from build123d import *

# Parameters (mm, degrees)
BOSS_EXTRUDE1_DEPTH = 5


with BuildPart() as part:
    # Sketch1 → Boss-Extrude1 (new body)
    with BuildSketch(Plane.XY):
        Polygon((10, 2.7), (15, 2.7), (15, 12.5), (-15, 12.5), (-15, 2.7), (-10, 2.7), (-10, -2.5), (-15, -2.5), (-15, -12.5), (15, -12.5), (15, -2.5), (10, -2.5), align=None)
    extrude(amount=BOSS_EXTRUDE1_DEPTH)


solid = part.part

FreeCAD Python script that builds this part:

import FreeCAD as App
import Part
import Sketcher

doc = App.newDocument("Part")
body = doc.addObject("PartDesign::Body", "Body")

# Sketch on XY plane
sketch1 = body.newObject("Sketcher::SketchObject", "Sketch")
sketch1.AttachmentSupport = (doc.getObject("XY_Plane"), [""])
sketch1.MapMode = "FlatFace"
sketch1.addGeometry(Part.LineSegment(App.Vector(10, 3, 0), App.Vector(15, 3, 0)), False)
sketch1.addGeometry(Part.LineSegment(App.Vector(15, 3, 0), App.Vector(15, 12, 0)), False)
sketch1.addGeometry(Part.LineSegment(App.Vector(15, 12, 0), App.Vector(-15, 12, 0)), False)
sketch1.addGeometry(Part.LineSegment(App.Vector(-15, 12, 0), App.Vector(-15, 3, 0)), False)
sketch1.addGeometry(Part.LineSegment(App.Vector(-15, 3, 0), App.Vector(-10, 3, 0)), False)
sketch1.addGeometry(Part.LineSegment(App.Vector(-10, 3, 0), App.Vector(-10, -2, 0)), False)
sketch1.addGeometry(Part.LineSegment(App.Vector(-10, -2, 0), App.Vector(-15, -2, 0)), False)
sketch1.addGeometry(Part.LineSegment(App.Vector(-15, -2, 0), App.Vector(-15, -12, 0)), False)
sketch1.addGeometry(Part.LineSegment(App.Vector(-15, -12, 0), App.Vector(15, -12, 0)), False)
sketch1.addGeometry(Part.LineSegment(App.Vector(15, -12, 0), App.Vector(15, -2, 0)), False)
sketch1.addGeometry(Part.LineSegment(App.Vector(15, -2, 0), App.Vector(10, -2, 0)), False)
sketch1.addGeometry(Part.LineSegment(App.Vector(10, -2, 0), App.Vector(10, 3, 0)), False)
sketch1.addConstraint(Sketcher.Constraint("Coincident", 0, 2, 1, 1))
sketch1.addConstraint(Sketcher.Constraint("Coincident", 1, 2, 2, 1))
sketch1.addConstraint(Sketcher.Constraint("Coincident", 2, 2, 3, 1))
sketch1.addConstraint(Sketcher.Constraint("Coincident", 3, 2, 4, 1))
sketch1.addConstraint(Sketcher.Constraint("Coincident", 4, 2, 5, 1))
sketch1.addConstraint(Sketcher.Constraint("Coincident", 5, 2, 6, 1))
sketch1.addConstraint(Sketcher.Constraint("Coincident", 6, 2, 7, 1))
sketch1.addConstraint(Sketcher.Constraint("Coincident", 7, 2, 8, 1))
sketch1.addConstraint(Sketcher.Constraint("Coincident", 8, 2, 9, 1))
sketch1.addConstraint(Sketcher.Constraint("Coincident", 9, 2, 10, 1))
sketch1.addConstraint(Sketcher.Constraint("Coincident", 10, 2, 11, 1))
sketch1.addConstraint(Sketcher.Constraint("Coincident", 11, 2, 0, 1))
sketch1.addConstraint(Sketcher.Constraint("Horizontal", 0))
sketch1.addConstraint(Sketcher.Constraint("Vertical", 1))
sketch1.addConstraint(Sketcher.Constraint("Horizontal", 2))
sketch1.addConstraint(Sketcher.Constraint("Vertical", 3))
sketch1.addConstraint(Sketcher.Constraint("Horizontal", 4))
sketch1.addConstraint(Sketcher.Constraint("Vertical", 5))
sketch1.addConstraint(Sketcher.Constraint("Horizontal", 6))
sketch1.addConstraint(Sketcher.Constraint("Vertical", 7))
sketch1.addConstraint(Sketcher.Constraint("Horizontal", 8))
sketch1.addConstraint(Sketcher.Constraint("Vertical", 9))
sketch1.addConstraint(Sketcher.Constraint("Horizontal", 10))
sketch1.addConstraint(Sketcher.Constraint("Vertical", 11))
sketch1.addConstraint(Sketcher.Constraint("Symmetric", 1, 2, 7, 2, -1, 1))
sketch1.addConstraint(Sketcher.Constraint("Symmetric", 0, 2, 3, 2, -2))
sketch1.addConstraint(Sketcher.Constraint("Symmetric", 6, 2, 9, 2, -2))
sketch1.addConstraint(Sketcher.Constraint("Equal", 0, 4))
sketch1.addConstraint(Sketcher.Constraint("DistanceX", 0, 1, 0, 2, 5.0))
sketch1.addConstraint(Sketcher.Constraint("DistanceX", 2, 2, 2, 1, 30.0))
sketch1.addConstraint(Sketcher.Constraint("DistanceY", 7, 2, 7, 1, 10.0))
sketch1.addConstraint(Sketcher.Constraint("DistanceY", 1, 1, 1, 2, 9.8))
sketch1.addConstraint(Sketcher.Constraint("DistanceY", 5, 2, 5, 1, 5.2))
pad1 = body.newObject("PartDesign::Pad", "Pad")
pad1.Profile = sketch1
pad1.Length = 5

doc.recompute()
